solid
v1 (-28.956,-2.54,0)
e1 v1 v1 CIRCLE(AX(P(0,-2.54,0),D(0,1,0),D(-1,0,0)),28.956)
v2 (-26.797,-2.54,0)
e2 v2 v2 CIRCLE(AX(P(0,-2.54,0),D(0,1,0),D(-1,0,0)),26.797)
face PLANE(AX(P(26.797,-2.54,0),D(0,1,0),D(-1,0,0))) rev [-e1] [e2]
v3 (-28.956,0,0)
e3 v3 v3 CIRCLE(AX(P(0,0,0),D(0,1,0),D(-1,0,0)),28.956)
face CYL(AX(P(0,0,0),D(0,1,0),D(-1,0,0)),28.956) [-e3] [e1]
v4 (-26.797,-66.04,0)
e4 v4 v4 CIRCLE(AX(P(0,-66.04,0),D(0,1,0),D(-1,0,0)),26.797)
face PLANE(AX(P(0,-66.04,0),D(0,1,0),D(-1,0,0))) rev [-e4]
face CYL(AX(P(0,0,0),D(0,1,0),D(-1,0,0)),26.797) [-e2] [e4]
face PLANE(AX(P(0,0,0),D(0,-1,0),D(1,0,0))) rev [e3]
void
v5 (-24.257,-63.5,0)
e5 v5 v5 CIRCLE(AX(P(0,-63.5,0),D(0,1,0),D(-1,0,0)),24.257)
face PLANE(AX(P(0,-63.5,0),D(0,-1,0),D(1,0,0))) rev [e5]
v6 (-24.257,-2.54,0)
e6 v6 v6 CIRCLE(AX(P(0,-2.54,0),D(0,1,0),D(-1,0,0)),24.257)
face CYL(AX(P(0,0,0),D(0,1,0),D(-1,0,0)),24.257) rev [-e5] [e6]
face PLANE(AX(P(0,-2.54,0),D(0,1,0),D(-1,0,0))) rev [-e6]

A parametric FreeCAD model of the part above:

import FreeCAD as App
import Part
import Sketcher

V = App.Vector
Q = App.Units.Quantity


def add_polygon(sketch, points):
    """Adds a closed chain of lines whose ends are joined by coincident constraints."""
    first, n = sketch.GeometryCount, len(points)
    for a, b in zip(points, points[1:] + points[:1]):
        sketch.addGeometry(Part.LineSegment(App.Vector(*a, 0), App.Vector(*b, 0)), False)
    for i in range(n):
        sketch.addConstraint(Sketcher.Constraint("Coincident", first + i, 2, first + (i + 1) % n, 1))

doc = App.newDocument("Part")
body = doc.addObject("PartDesign::Body", "Body")

# Sketch on XY plane
sketch1 = body.newObject("Sketcher::SketchObject", "Sketch")
sketch1.AttachmentSupport = (doc.getObject("XY_Plane"), [""])
sketch1.MapMode = "FlatFace"
add_polygon(sketch1, [(28.956, 0), (0, 0), (0, -2.54), (24.257, -2.54), (24.257, -63.5), (0, -63.5), (0, -66.04), (26.797, -66.04), (26.797, -2.54), (28.956, -2.54)])  # lines 0-9
sketch1.addConstraint([
    Sketcher.Constraint("Horizontal", 0),
    Sketcher.Constraint("Vertical", 1),
    Sketcher.Constraint("Horizontal", 2),
    Sketcher.Constraint("Vertical", 3),
    Sketcher.Constraint("Horizontal", 4),
    Sketcher.Constraint("Vertical", 5),
    Sketcher.Constraint("Horizontal", 6),
    Sketcher.Constraint("Vertical", 7),
    Sketcher.Constraint("Horizontal", 8),
    Sketcher.Constraint("Vertical", 9),
    Sketcher.Constraint("Coincident", 0, 2, -1, 1),
    Sketcher.Constraint("PointOnObject", 4, 2, -2),
    Sketcher.Constraint("Horizontal", 2, 2, 7, 2),
    Sketcher.Constraint("Equal", 1, 5),
    Sketcher.Constraint("DistanceY", 1, 2, 1, 1, Q("0.1 in")),
    Sketcher.Constraint("DistanceY", 3, 2, 3, 1, Q("2.4 in")),
    Sketcher.Constraint("DistanceX", 0, 2, 0, 1, Q("1.14 in")),
    Sketcher.Constraint("DistanceX", 3, 2, 6, 2, Q("0.1 in")),
    Sketcher.Constraint("DistanceX", 2, 1, 2, 2, Q("0.955 in")),
])
revolution = body.newObject("PartDesign::Revolution", "Revolution")
revolution.Profile = sketch1
revolution.ReferenceAxis = (sketch1, ["V_Axis"])
revolution.Angle = 360

doc.recompute()
